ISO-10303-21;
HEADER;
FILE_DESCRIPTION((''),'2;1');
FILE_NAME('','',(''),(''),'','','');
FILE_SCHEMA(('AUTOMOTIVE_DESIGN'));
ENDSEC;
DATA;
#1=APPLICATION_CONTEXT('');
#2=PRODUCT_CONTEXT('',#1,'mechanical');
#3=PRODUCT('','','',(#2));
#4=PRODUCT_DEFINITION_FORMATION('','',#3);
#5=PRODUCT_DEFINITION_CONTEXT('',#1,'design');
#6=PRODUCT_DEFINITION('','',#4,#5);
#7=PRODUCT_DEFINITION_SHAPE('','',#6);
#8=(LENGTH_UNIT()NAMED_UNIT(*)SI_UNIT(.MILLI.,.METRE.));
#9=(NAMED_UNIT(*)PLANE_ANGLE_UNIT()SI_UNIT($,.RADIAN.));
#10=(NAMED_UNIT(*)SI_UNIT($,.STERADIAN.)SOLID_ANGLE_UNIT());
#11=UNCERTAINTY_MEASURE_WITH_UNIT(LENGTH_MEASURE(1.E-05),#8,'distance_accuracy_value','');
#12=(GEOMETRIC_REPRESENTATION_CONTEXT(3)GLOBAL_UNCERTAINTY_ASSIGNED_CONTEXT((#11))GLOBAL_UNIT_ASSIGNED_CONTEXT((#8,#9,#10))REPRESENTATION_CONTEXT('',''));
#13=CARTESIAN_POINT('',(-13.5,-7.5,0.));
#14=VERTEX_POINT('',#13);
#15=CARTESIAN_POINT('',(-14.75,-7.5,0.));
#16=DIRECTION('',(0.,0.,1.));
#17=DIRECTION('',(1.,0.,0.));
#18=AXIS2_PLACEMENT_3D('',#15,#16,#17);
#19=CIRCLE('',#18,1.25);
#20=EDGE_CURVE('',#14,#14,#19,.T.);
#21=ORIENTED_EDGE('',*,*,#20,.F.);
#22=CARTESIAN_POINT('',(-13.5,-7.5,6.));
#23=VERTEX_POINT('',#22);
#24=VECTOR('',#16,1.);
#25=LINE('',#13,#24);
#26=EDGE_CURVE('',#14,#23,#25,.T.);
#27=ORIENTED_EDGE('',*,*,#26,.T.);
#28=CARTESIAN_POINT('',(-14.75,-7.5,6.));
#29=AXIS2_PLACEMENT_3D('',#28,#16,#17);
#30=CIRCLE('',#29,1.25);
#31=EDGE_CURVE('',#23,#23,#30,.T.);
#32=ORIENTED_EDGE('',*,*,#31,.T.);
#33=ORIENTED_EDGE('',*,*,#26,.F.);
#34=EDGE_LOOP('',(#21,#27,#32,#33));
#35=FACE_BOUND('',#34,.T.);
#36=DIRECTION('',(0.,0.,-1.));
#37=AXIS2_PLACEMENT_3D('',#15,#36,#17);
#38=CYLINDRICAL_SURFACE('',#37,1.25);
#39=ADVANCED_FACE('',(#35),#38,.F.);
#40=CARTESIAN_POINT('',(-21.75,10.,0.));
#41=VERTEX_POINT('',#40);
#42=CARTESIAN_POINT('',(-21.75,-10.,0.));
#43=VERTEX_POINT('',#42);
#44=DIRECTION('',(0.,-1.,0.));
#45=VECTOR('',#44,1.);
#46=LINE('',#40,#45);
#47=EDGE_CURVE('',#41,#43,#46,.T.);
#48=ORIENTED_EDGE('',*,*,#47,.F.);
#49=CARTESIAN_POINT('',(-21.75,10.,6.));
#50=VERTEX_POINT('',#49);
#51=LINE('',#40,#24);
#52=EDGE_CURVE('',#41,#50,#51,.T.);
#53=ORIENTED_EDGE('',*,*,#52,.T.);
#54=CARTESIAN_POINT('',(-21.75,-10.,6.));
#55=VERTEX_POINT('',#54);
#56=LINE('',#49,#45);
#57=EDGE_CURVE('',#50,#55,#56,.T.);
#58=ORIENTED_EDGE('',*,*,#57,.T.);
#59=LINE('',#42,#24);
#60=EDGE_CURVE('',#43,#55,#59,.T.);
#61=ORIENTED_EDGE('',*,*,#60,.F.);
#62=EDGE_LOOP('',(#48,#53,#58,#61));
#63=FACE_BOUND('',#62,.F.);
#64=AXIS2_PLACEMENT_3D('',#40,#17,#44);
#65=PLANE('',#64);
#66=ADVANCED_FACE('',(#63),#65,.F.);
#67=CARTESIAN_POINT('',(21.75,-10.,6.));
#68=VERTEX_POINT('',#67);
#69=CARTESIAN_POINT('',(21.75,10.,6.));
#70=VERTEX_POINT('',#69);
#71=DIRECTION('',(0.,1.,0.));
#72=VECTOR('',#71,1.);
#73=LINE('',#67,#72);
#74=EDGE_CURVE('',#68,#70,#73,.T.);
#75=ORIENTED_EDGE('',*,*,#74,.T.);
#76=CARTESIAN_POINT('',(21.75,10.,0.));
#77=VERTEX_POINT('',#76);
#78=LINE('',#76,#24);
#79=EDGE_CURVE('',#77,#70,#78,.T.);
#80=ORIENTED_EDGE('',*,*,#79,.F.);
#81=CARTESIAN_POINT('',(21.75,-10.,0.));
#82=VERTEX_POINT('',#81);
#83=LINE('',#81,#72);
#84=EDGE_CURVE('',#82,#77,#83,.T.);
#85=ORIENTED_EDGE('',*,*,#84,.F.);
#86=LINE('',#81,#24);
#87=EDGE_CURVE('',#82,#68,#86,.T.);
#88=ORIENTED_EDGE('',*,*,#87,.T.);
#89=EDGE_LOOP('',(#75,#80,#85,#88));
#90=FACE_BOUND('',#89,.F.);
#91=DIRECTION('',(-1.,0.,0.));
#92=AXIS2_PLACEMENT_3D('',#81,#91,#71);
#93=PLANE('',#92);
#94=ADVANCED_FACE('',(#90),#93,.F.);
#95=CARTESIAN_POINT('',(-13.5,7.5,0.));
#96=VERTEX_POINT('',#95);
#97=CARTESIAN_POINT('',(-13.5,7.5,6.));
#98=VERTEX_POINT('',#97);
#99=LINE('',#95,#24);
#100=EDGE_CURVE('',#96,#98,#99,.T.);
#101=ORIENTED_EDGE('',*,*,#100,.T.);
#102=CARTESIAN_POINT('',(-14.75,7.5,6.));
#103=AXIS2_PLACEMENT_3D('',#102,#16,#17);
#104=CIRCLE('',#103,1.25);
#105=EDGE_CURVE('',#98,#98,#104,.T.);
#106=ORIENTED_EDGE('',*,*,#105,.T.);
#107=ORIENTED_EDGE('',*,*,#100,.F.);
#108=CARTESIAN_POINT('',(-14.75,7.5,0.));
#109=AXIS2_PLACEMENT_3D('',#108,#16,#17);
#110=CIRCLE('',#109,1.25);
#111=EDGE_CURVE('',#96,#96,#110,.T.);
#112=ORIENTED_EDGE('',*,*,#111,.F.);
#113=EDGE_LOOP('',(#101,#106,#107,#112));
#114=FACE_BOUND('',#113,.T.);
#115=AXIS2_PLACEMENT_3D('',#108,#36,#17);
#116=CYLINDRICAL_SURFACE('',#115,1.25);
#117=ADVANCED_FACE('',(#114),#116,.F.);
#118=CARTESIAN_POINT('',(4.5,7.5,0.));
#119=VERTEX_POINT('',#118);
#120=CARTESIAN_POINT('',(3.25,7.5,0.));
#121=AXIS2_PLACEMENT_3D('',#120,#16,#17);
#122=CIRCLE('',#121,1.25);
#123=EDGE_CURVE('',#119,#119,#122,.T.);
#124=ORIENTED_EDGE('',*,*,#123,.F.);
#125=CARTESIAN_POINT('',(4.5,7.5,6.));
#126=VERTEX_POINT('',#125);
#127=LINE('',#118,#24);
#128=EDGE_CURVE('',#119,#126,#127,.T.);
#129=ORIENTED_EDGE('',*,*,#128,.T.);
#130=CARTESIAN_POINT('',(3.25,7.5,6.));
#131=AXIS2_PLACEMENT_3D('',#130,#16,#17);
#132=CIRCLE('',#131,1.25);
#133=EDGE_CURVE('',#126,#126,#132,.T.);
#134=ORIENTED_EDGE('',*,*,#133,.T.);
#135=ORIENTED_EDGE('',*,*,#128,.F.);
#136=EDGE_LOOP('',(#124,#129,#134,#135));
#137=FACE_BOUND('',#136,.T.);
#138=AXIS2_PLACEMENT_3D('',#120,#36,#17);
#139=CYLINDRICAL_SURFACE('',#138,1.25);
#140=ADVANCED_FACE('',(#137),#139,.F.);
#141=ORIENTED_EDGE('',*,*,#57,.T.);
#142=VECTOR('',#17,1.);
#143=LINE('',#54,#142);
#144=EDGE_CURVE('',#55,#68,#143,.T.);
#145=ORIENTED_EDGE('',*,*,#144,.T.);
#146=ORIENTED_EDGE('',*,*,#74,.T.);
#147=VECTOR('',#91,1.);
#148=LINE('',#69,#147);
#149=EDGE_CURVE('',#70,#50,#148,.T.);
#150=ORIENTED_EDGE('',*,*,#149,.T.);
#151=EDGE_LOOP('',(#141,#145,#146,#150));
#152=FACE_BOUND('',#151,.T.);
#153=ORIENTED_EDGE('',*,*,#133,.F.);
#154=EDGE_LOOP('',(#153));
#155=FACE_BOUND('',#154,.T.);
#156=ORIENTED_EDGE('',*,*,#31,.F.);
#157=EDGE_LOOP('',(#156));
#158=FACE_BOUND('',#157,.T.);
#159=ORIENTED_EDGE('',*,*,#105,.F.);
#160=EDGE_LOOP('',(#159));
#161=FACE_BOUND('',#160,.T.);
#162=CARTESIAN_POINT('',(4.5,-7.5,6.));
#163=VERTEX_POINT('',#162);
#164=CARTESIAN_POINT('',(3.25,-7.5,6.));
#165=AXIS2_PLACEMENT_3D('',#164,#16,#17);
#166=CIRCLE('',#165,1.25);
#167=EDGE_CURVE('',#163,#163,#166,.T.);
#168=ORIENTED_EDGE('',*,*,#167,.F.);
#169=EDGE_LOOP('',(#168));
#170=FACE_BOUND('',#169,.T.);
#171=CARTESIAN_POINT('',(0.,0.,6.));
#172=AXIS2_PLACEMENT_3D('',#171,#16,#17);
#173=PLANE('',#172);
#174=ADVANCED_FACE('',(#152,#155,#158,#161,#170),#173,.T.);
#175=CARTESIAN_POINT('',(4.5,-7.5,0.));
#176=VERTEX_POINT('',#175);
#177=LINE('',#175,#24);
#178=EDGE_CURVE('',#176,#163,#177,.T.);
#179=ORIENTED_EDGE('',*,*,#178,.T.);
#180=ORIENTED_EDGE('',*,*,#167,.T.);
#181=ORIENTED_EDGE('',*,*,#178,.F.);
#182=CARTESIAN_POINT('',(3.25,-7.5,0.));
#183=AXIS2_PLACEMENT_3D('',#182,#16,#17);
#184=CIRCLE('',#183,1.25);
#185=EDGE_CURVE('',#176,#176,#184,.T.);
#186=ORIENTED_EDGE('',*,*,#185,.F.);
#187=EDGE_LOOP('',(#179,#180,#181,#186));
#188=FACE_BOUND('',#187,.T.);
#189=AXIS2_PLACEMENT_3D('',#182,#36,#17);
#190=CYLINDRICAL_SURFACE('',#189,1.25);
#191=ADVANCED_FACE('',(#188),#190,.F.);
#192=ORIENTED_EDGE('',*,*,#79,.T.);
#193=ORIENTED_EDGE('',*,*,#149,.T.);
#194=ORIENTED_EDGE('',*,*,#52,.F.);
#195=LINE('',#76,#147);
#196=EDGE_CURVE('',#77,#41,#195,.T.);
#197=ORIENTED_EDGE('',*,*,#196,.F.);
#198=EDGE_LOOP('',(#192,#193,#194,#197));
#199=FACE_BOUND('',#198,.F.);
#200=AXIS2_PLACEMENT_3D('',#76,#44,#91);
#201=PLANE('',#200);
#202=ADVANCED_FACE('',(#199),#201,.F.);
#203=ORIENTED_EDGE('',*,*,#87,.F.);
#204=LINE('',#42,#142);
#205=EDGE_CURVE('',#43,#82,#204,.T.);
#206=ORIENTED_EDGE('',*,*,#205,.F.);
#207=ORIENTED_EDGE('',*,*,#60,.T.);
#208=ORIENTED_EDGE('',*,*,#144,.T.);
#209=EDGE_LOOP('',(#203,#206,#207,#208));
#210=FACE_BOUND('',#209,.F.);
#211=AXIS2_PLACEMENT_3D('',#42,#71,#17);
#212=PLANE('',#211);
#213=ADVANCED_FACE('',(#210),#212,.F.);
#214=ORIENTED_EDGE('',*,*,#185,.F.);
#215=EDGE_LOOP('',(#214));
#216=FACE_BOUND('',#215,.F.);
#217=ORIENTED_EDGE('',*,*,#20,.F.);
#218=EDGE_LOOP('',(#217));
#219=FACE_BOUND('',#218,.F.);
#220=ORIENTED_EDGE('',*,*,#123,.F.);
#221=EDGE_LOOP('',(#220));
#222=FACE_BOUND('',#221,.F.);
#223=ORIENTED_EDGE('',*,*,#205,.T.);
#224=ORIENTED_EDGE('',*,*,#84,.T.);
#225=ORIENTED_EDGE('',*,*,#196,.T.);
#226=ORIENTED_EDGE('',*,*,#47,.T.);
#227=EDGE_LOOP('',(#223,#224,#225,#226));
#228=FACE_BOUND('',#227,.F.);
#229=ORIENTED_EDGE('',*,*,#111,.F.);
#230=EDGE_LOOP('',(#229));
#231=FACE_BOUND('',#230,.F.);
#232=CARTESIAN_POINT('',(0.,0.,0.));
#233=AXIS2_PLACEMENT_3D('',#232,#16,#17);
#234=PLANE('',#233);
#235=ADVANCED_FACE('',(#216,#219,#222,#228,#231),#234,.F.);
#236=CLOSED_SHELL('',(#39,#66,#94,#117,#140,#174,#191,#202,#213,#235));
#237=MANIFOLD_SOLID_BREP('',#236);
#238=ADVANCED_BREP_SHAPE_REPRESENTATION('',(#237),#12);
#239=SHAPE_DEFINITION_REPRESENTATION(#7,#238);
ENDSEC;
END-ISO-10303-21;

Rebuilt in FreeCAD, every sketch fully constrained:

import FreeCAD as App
import Part
import Sketcher
from FreeCAD import Vector


def add_polygon(sketch, points):
    """Adds a closed chain of lines whose ends are joined by coincident constraints."""
    first, n = sketch.GeometryCount, len(points)
    for a, b in zip(points, points[1:] + points[:1]):
        sketch.addGeometry(Part.LineSegment(App.Vector(*a, 0), App.Vector(*b, 0)), False)
    for i in range(n):
        sketch.addConstraint(Sketcher.Constraint("Coincident", first + i, 2, first + (i + 1) % n, 1))

doc = App.newDocument("Part")
params = doc.addObject("Spreadsheet::Sheet", "Params")
for row, (alias, value) in enumerate([
    ("sketch1_diameter", "2.5 mm"),
    ("sketch1_height", "20 mm"),
    ("sketch1_width", "43.5 mm"),
    ("pad1_length", "6 mm"),
], start=1):
    params.set(f"A{row}", alias)
    params.set(f"B{row}", "=" + value)
    params.setAlias(f"B{row}", alias)

body = doc.addObject("PartDesign::Body", "Body")

sketch1 = body.newObject("Sketcher::SketchObject", "Sketch")
sketch1.AttachmentSupport = (doc.getObject("XY_Plane"), [""])
sketch1.MapMode = "FlatFace"
add_polygon(sketch1, [(-21.8, 10), (-21.8, -10), (21.8, -10), (21.8, 10)])
sketch1.addGeometry(Part.Circle(Vector(-14.8, -7.5, 0), Vector(0, 0, 1), 1.2), False)
sketch1.addGeometry(Part.Circle(Vector(3.2, -7.5, 0), Vector(0, 0, 1), 1.2), False)
sketch1.addGeometry(Part.Circle(Vector(-14.8, 7.5, 0), Vector(0, 0, 1), 1.2), False)
sketch1.addGeometry(Part.Circle(Vector(3.2, 7.5, 0), Vector(0, 0, 1), 1.2), False)
sketch1.addConstraint(Sketcher.Constraint("Vertical", 0))
sketch1.addConstraint(Sketcher.Constraint("Horizontal", 1))
sketch1.addConstraint(Sketcher.Constraint("Vertical", 2))
sketch1.addConstraint(Sketcher.Constraint("Horizontal", 3))
sketch1.addConstraint(Sketcher.Constraint("Equal", 4, 5))
sketch1.addConstraint(Sketcher.Constraint("Equal", 5, 6))
sketch1.addConstraint(Sketcher.Constraint("Equal", 6, 7))
sketch1.addConstraint(Sketcher.Constraint("Symmetric", 0, 2, 2, 2, -1, 1))
sketch1.addConstraint(Sketcher.Constraint("Symmetric", 4, 3, 6, 3, -1))
sketch1.addConstraint(Sketcher.Constraint("Symmetric", 5, 3, 7, 3, -1))
sketch1.addConstraint(Sketcher.Constraint("Horizontal", 4, 3, 5, 3))
sketch1.addConstraint(Sketcher.Constraint("Diameter", 4, 2.5))
sketch1.addConstraint(Sketcher.Constraint("DistanceY", 0, 2, 0, 1, 20.0))
sketch1.addConstraint(Sketcher.Constraint("DistanceX", 1, 1, 1, 2, 43.5))
sketch1.addConstraint(Sketcher.Constraint("DistanceX", 4, 3, 5, 3, 18.0))
sketch1.addConstraint(Sketcher.Constraint("DistanceY", 4, 3, 6, 3, 15.0))
sketch1.addConstraint(Sketcher.Constraint("DistanceX", 0, 2, 4, 3, 7.0))
sketch1.setExpression("Constraints[15]", "Params.sketch1_diameter")
sketch1.setExpression("Constraints[16]", "Params.sketch1_height")
sketch1.setExpression("Constraints[17]", "Params.sketch1_width")
pad1 = body.newObject("PartDesign::Pad", "Pad")
pad1.Profile = sketch1
pad1.setExpression("Length", "Params.pad1_length")

doc.recompute()
